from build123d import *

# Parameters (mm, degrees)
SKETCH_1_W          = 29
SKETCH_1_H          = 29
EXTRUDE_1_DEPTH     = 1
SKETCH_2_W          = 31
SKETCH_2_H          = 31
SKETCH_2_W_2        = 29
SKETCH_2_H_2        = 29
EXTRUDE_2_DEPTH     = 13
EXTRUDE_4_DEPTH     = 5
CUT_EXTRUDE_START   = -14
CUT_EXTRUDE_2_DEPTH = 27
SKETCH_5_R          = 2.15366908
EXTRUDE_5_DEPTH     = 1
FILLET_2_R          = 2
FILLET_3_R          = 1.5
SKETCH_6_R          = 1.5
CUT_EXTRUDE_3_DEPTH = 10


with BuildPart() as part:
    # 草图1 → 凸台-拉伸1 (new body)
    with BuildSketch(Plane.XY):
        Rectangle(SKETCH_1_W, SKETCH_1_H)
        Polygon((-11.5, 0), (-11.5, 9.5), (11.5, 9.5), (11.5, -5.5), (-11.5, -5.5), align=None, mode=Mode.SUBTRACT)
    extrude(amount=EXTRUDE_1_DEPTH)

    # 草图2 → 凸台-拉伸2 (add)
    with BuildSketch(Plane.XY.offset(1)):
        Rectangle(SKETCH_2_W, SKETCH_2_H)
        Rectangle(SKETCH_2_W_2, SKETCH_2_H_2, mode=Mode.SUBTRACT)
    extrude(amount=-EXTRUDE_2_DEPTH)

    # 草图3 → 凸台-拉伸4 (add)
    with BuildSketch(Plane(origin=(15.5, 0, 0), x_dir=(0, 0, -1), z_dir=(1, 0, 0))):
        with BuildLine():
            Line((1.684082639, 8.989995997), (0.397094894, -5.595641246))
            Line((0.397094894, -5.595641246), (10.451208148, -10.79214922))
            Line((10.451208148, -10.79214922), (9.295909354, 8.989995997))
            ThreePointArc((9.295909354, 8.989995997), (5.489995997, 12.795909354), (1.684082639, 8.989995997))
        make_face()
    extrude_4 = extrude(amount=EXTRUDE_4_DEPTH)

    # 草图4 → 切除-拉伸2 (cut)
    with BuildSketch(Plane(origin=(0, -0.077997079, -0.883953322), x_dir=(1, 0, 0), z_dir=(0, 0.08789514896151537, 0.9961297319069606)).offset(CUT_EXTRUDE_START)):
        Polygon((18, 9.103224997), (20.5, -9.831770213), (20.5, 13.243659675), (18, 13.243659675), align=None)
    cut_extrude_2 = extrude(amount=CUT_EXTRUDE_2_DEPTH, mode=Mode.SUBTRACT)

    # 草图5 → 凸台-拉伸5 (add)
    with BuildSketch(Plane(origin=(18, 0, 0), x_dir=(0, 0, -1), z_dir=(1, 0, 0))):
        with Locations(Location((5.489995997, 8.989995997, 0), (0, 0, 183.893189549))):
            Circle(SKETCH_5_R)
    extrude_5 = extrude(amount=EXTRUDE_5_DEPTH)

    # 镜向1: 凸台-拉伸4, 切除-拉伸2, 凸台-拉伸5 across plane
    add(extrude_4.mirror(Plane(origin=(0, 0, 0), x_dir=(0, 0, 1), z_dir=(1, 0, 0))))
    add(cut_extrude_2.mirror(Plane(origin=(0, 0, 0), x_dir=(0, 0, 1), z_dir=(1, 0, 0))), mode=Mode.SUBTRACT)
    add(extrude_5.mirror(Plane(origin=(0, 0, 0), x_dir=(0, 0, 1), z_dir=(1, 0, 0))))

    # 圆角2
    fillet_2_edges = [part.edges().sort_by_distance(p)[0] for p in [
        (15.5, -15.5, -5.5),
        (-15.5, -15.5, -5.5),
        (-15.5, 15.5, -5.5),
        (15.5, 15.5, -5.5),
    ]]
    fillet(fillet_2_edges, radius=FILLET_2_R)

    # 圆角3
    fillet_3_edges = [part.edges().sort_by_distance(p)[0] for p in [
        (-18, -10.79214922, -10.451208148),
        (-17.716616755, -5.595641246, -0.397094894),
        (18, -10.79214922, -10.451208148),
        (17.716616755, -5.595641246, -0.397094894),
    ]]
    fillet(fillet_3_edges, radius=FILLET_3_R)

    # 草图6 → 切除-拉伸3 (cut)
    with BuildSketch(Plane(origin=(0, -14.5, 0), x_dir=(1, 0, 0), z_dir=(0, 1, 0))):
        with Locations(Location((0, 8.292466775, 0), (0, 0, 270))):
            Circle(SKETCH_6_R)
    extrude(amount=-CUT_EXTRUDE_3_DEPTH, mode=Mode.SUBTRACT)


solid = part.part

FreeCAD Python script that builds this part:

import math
import FreeCAD as App
import Part
import Sketcher


def edges_at(feature, points):
    """Names of the edges that pass closest to the given points."""
    edges = feature.Shape.Edges
    near = lambda p: min(range(len(edges)), key=lambda i: edges[i].distToShape(Part.Vertex(*p))[0])
    return sorted({f"Edge{near(p) + 1}" for p in points})

doc = App.newDocument("Part")
body = doc.addObject("PartDesign::Body", "Body")

# Sketch on XY plane
sketch1 = doc.addObject("Sketcher::SketchObject", "Sketch")
body.addObject(sketch1)
sketch1.AttachmentSupport = (doc.XY_Plane, [""])
sketch1.MapMode = "FlatFace"
sketch1.addGeometry([
    Part.LineSegment(App.Vector(-14.5, 14.5, 0), App.Vector(-14.5, -14.5, 0)),  # 0
    Part.LineSegment(App.Vector(-14.5, -14.5, 0), App.Vector(14.5, -14.5, 0)),  # 1
    Part.LineSegment(App.Vector(14.5, -14.5, 0), App.Vector(14.5, 14.5, 0)),  # 2
    Part.LineSegment(App.Vector(14.5, 14.5, 0), App.Vector(-14.5, 14.5, 0)),  # 3
    Part.LineSegment(App.Vector(-11.5, -5.5, 0), App.Vector(-11.5, 9.5, 0)),  # 4
    Part.LineSegment(App.Vector(-11.5, 9.5, 0), App.Vector(11.5, 9.5, 0)),  # 5
    Part.LineSegment(App.Vector(11.5, 9.5, 0), App.Vector(11.5, -5.5, 0)),  # 6
    Part.LineSegment(App.Vector(11.5, -5.5, 0), App.Vector(-11.5, -5.5, 0)),  # 7
], False)
sketch1.addConstraint([
    Sketcher.Constraint("Coincident", 0, 2, 1, 1),
    Sketcher.Constraint("Coincident", 1, 2, 2, 1),
    Sketcher.Constraint("Coincident", 2, 2, 3, 1),
    Sketcher.Constraint("Coincident", 3, 2, 0, 1),
    Sketcher.Constraint("Coincident", 4, 2, 5, 1),
    Sketcher.Constraint("Coincident", 5, 2, 6, 1),
    Sketcher.Constraint("Coincident", 6, 2, 7, 1),
    Sketcher.Constraint("Coincident", 7, 2, 4, 1),
    Sketcher.Constraint("Vertical", 0),
    Sketcher.Constraint("Horizontal", 1),
    Sketcher.Constraint("Vertical", 2),
    Sketcher.Constraint("Horizontal", 3),
    Sketcher.Constraint("Vertical", 4),
    Sketcher.Constraint("Horizontal", 5),
    Sketcher.Constraint("Vertical", 6),
    Sketcher.Constraint("Horizontal", 7),
    Sketcher.Constraint("Symmetric", 0, 2, 2, 2, -1, 1),
    Sketcher.Constraint("Equal", 3, 0),
    Sketcher.Constraint("DistanceX", 1, 1, 1, 2, 29.0),
    Sketcher.Constraint("DistanceX", 5, 1, 5, 2, 23.0),
    Sketcher.Constraint("DistanceY", 4, 1, 4, 2, 15.0),
    Sketcher.Constraint("DistanceX", 3, 2, 4, 2, 3.0),
    Sketcher.Constraint("DistanceY", 4, 2, 3, 2, 5.0),
])
pad1 = doc.addObject("PartDesign::Pad", "Pad")
body.addObject(pad1)
pad1.Profile = sketch1
pad1.Length = 1

# Sketch on XY plane
sketch2 = doc.addObject("Sketcher::SketchObject", "Sketch001")
body.addObject(sketch2)
sketch2.AttachmentSupport = (doc.XY_Plane, [""])
sketch2.MapMode = "FlatFace"
sketch2.AttachmentOffset = App.Placement(App.Vector(0, 0, 1), App.Rotation())
sketch2.addGeometry([
    Part.LineSegment(App.Vector(-15.5, 15.5, 0), App.Vector(-15.5, -15.5, 0)),  # 0
    Part.LineSegment(App.Vector(-15.5, -15.5, 0), App.Vector(15.5, -15.5, 0)),  # 1
    Part.LineSegment(App.Vector(15.5, -15.5, 0), App.Vector(15.5, 15.5, 0)),  # 2
    Part.LineSegment(App.Vector(15.5, 15.5, 0), App.Vector(-15.5, 15.5, 0)),  # 3
    Part.LineSegment(App.Vector(14.5, -14.5, 0), App.Vector(-14.5, -14.5, 0)),  # 4
    Part.LineSegment(App.Vector(-14.5, -14.5, 0), App.Vector(-14.5, 14.5, 0)),  # 5
    Part.LineSegment(App.Vector(-14.5, 14.5, 0), App.Vector(14.5, 14.5, 0)),  # 6
    Part.LineSegment(App.Vector(14.5, 14.5, 0), App.Vector(14.5, -14.5, 0)),  # 7
], False)
sketch2.addConstraint([
    Sketcher.Constraint("Coincident", 0, 2, 1, 1),
    Sketcher.Constraint("Coincident", 1, 2, 2, 1),
    Sketcher.Constraint("Coincident", 2, 2, 3, 1),
    Sketcher.Constraint("Coincident", 3, 2, 0, 1),
    Sketcher.Constraint("Coincident", 4, 2, 5, 1),
    Sketcher.Constraint("Coincident", 5, 2, 6, 1),
    Sketcher.Constraint("Coincident", 6, 2, 7, 1),
    Sketcher.Constraint("Coincident", 7, 2, 4, 1),
    Sketcher.Constraint("Vertical", 0),
    Sketcher.Constraint("Horizontal", 1),
    Sketcher.Constraint("Vertical", 2),
    Sketcher.Constraint("Horizontal", 3),
    Sketcher.Constraint("Horizontal", 4),
    Sketcher.Constraint("Vertical", 5),
    Sketcher.Constraint("Horizontal", 6),
    Sketcher.Constraint("Vertical", 7),
    Sketcher.Constraint("Symmetric", 0, 2, 2, 2, -1, 1),
    Sketcher.Constraint("Symmetric", 4, 2, 6, 2, -1, 1),
    Sketcher.Constraint("Equal", 3, 0),
    Sketcher.Constraint("Equal", 6, 5),
    Sketcher.Constraint("DistanceX", 1, 1, 1, 2, 31.0),
    Sketcher.Constraint("DistanceX", 4, 2, 4, 1, 29.0),
])
pad2 = doc.addObject("PartDesign::Pad", "Pad001")
body.addObject(pad2)
pad2.Profile = sketch2
pad2.Length = 13
pad2.Reversed = True

# Sketch on YZ plane
sketch3 = doc.addObject("Sketcher::SketchObject", "Sketch002")
body.addObject(sketch3)
sketch3.AttachmentSupport = (doc.YZ_Plane, [""])
sketch3.MapMode = "FlatFace"
sketch3.AttachmentOffset = App.Placement(App.Vector(0, 0, 15.5), App.Rotation())
sketch3.addGeometry([
    Part.LineSegment(App.Vector(8.989996, -1.684083, 0), App.Vector(-5.595641, -0.397095, 0)),
    Part.LineSegment(App.Vector(-5.595641, -0.397095, 0), App.Vector(-10.792149, -10.451208, 0)),
    Part.LineSegment(App.Vector(-10.792149, -10.451208, 0), App.Vector(8.989996, -9.295909, 0)),
    Part.ArcOfCircle(Part.Circle(App.Vector(8.989996, -5.489996, 0), App.Vector(0, 0, 1), 3.805913), math.radians(-90), math.radians(90)),
], False)
sketch3.addConstraint([
    Sketcher.Constraint("Coincident", 0, 2, 1, 1),
    Sketcher.Constraint("Coincident", 1, 2, 2, 1),
    Sketcher.Constraint("Coincident", 2, 2, 3, 1),
    Sketcher.Constraint("Coincident", 3, 2, 0, 1),
    Sketcher.Constraint("Vertical", 3, 3, 2, 2),
    Sketcher.Constraint("Vertical", 2, 2, 3, 2),
    Sketcher.Constraint("Radius", 3, 3.805913),
    Sketcher.Constraint("DistanceY", 3, 3, 0, 2, 5.092901),
    Sketcher.Constraint("DistanceY", 1, 2, 2, 2, 1.155299),
    Sketcher.Constraint("Distance", 2, 19.815852),
    Sketcher.Constraint("DistanceX", 0, 2, -1, 1, 5.595641),
    Sketcher.Constraint("DistanceX", 1, 2, -1, 1, 10.792149),
    Sketcher.Constraint("DistanceY", 1, 2, -1, 1, 10.451208),
])
pad3 = doc.addObject("PartDesign::Pad", "Pad002")
body.addObject(pad3)
pad3.Profile = sketch3
pad3.Length = 5

# Sketch on an angled plane
sketch4 = doc.addObject("Sketcher::SketchObject", "Sketch003")
body.addObject(sketch4)
sketch4.Placement = App.Placement(App.Vector(0, -1.308529, -14.82977), App.Rotation(App.Vector(1, 0, 0), App.Vector(0, 0.996129732, -0.087895149), App.Vector(0, 0.087895149, 0.996129732), "ZXY"))
sketch4.addGeometry([
    Part.LineSegment(App.Vector(18, 9.103225, 0), App.Vector(20.5, -9.83177, 0)),
    Part.LineSegment(App.Vector(20.5, -9.83177, 0), App.Vector(20.5, 13.24366, 0)),
    Part.LineSegment(App.Vector(20.5, 13.24366, 0), App.Vector(18, 13.24366, 0)),
    Part.LineSegment(App.Vector(18, 13.24366, 0), App.Vector(18, 9.103225, 0)),
], False)
sketch4.addConstraint([
    Sketcher.Constraint("Coincident", 0, 2, 1, 1),
    Sketcher.Constraint("Coincident", 1, 2, 2, 1),
    Sketcher.Constraint("Coincident", 2, 2, 3, 1),
    Sketcher.Constraint("Coincident", 3, 2, 0, 1),
    Sketcher.Constraint("Vertical", 1),
    Sketcher.Constraint("Horizontal", 2),
    Sketcher.Constraint("Vertical", 3),
    Sketcher.Constraint("DistanceX", 2, 2, 2, 1, 2.5),
    Sketcher.Constraint("DistanceX", -1, 1, 2, 2, 18.0),
    Sketcher.Constraint("DistanceY", 1, 1, 1, 2, 23.07543),
    Sketcher.Constraint("Distance", 0, 19.099321),
    Sketcher.Constraint("DistanceY", 0, 2, -1, 1, 9.83177),
])
pocket1 = doc.addObject("PartDesign::Pocket", "Pocket")
body.addObject(pocket1)
pocket1.Profile = sketch4
pocket1.Length = 27
pocket1.Reversed = True

# Sketch on YZ plane
sketch5 = doc.addObject("Sketcher::SketchObject", "Sketch004")
body.addObject(sketch5)
sketch5.AttachmentSupport = (doc.YZ_Plane, [""])
sketch5.MapMode = "FlatFace"
sketch5.AttachmentOffset = App.Placement(App.Vector(0, 0, 18), App.Rotation())
sketch5.addGeometry(Part.Circle(App.Vector(8.989996, -5.489996, 0), App.Vector(0, 0, 1), 2.153669), False)
sketch5.addConstraint([
    Sketcher.Constraint("Diameter", 0, 4.307338),
    Sketcher.Constraint("DistanceX", -1, 1, 0, 3, 8.989996),
    Sketcher.Constraint("DistanceY", 0, 3, -1, 1, 5.489996),
])
pad4 = doc.addObject("PartDesign::Pad", "Pad003")
body.addObject(pad4)
pad4.Profile = sketch5
pad4.Length = 1
doc.recompute()

mirrored = doc.addObject("PartDesign::Mirrored", "Mirrored")
body.addObject(mirrored)
mirrored.Originals = [pad3, pocket1, pad4]
mirrored.MirrorPlane = (doc.YZ_Plane, [""])
body.Tip = mirrored
doc.recompute()

fillet = doc.addObject("PartDesign::Fillet", "Fillet")
body.addObject(fillet)
fillet.Base = (mirrored, edges_at(mirrored, [
    (15.5, -15.5, -5.5),
    (-15.5, -15.5, -5.5),
    (-15.5, 15.5, -5.5),
    (15.5, 15.5, -5.5),
]))
fillet.Radius = 2
doc.recompute()

fillet2 = doc.addObject("PartDesign::Fillet", "Fillet001")
body.addObject(fillet2)
fillet2.Base = (fillet, edges_at(fillet, [
    (-18, -10.792, -10.451),
    (-17.717, -5.596, -0.397),
    (18, -10.792, -10.451),
    (17.717, -5.596, -0.397),
]))
fillet2.Radius = 1.5

# Sketch on XZ plane
sketch6 = doc.addObject("Sketcher::SketchObject", "Sketch005")
body.addObject(sketch6)
sketch6.AttachmentSupport = (doc.XZ_Plane, [""])
sketch6.MapMode = "FlatFace"
sketch6.AttachmentOffset = App.Placement(App.Vector(0, 0, 14.5), App.Rotation())
sketch6.addGeometry(Part.Circle(App.Vector(0, -8.292467, 0), App.Vector(0, 0, 1), 1.5), False)
sketch6.addConstraint([
    Sketcher.Constraint("PointOnObject", 0, 3, -2),
    Sketcher.Constraint("Diameter", 0, 3.0),
    Sketcher.Constraint("DistanceY", 0, 3, -1, 1, 8.292467),
])
pocket2 = doc.addObject("PartDesign::Pocket", "Pocket001")
body.addObject(pocket2)
pocket2.Profile = sketch6
pocket2.Length = 10
pocket2.Reversed = True

doc.recompute()
